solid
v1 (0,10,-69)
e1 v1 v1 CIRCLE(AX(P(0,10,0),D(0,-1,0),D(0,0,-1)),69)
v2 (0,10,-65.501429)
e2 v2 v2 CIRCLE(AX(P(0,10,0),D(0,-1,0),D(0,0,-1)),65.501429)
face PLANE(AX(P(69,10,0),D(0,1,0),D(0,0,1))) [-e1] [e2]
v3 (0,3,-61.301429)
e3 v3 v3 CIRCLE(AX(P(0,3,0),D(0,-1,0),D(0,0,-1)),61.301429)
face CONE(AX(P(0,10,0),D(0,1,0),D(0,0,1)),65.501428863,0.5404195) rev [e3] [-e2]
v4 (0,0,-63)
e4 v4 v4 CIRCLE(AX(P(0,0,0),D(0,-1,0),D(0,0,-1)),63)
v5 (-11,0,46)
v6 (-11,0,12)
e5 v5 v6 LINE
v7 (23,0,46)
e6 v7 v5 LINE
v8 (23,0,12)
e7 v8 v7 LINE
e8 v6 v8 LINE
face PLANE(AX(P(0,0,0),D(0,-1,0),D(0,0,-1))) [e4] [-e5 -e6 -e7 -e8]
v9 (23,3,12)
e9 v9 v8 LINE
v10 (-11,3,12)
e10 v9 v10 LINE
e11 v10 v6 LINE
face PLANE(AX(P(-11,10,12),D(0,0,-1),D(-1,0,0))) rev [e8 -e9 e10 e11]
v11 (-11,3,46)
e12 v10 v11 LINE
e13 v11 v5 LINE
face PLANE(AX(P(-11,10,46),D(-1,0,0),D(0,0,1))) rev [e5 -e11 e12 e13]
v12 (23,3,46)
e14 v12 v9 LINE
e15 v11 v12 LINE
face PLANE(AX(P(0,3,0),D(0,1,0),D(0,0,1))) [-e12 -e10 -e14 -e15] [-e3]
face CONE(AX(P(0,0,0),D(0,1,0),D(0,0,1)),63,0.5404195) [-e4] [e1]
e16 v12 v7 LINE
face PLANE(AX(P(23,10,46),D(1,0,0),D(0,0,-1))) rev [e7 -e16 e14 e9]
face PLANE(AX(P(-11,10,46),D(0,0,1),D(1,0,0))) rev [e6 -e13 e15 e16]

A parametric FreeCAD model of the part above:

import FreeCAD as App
import Part
import Sketcher
Q = App.Units.Quantity

doc = App.newDocument("Part")
body = doc.addObject("PartDesign::Body", "Body")

# Sketch on XY plane
sketch1 = doc.addObject("Sketcher::SketchObject", "Sketch")
body.addObject(sketch1)
sketch1.AttachmentSupport = (doc.XY_Plane, [""])
sketch1.MapMode = "FlatFace"
sketch1.addGeometry(Part.LineSegment(App.Vector(0, 0, 0), App.Vector(63, 0, 0)), False)
sketch1.addGeometry(Part.LineSegment(App.Vector(63, 0, 0), App.Vector(69, 10, 0)), False)
sketch1.addGeometry(Part.LineSegment(App.Vector(69, 10, 0), App.Vector(65.5, 10, 0)), False)
sketch1.addGeometry(Part.LineSegment(App.Vector(65.5, 10, 0), App.Vector(61.3, 3, 0)), False)
sketch1.addGeometry(Part.LineSegment(App.Vector(61.3, 3, 0), App.Vector(0, 3, 0)), False)
sketch1.addGeometry(Part.LineSegment(App.Vector(0, 3, 0), App.Vector(0, 0, 0)), False)
sketch1.addConstraint(Sketcher.Constraint("Coincident", 0, 2, 1, 1))
sketch1.addConstraint(Sketcher.Constraint("Coincident", 1, 2, 2, 1))
sketch1.addConstraint(Sketcher.Constraint("Coincident", 2, 2, 3, 1))
sketch1.addConstraint(Sketcher.Constraint("Coincident", 3, 2, 4, 1))
sketch1.addConstraint(Sketcher.Constraint("Coincident", 4, 2, 5, 1))
sketch1.addConstraint(Sketcher.Constraint("Coincident", 5, 2, 0, 1))
sketch1.addConstraint(Sketcher.Constraint("Horizontal", 0))
sketch1.addConstraint(Sketcher.Constraint("Horizontal", 2))
sketch1.addConstraint(Sketcher.Constraint("Horizontal", 4))
sketch1.addConstraint(Sketcher.Constraint("Vertical", 5))
sketch1.addConstraint(Sketcher.Constraint("Coincident", 5, 2, -1, 1))
sketch1.addConstraint(Sketcher.Constraint("Parallel", 1, 3))
sketch1.addConstraint(Sketcher.Constraint("DistanceX", 0, 1, 0, 2, Q("63 mm")))
sketch1.addConstraint(Sketcher.Constraint("DistanceY", 5, 2, 5, 1, Q("3 mm")))
sketch1.addConstraint(Sketcher.Constraint("DistanceX", -1, 1, 1, 2, Q("69 mm")))
sketch1.addConstraint(Sketcher.Constraint("DistanceY", -1, 1, 1, 2, Q("10 mm")))
sketch1.addConstraint(Sketcher.Constraint("DistanceX", 2, 2, 2, 1, Q("3.498571 mm")))
revolution = doc.addObject("PartDesign::Revolution", "Revolution")
body.addObject(revolution)
revolution.Profile = sketch1
revolution.ReferenceAxis = (sketch1, ["V_Axis"])
revolution.Angle = 360

# Sketch on XZ plane
sketch2 = doc.addObject("Sketcher::SketchObject", "Sketch001")
body.addObject(sketch2)
sketch2.AttachmentSupport = (doc.XZ_Plane, [""])
sketch2.MapMode = "FlatFace"
sketch2.addGeometry(Part.LineSegment(App.Vector(-11, 46, 0), App.Vector(-11, 12, 0)), False)
sketch2.addGeometry(Part.LineSegment(App.Vector(-11, 12, 0), App.Vector(23, 12, 0)), False)
sketch2.addGeometry(Part.LineSegment(App.Vector(23, 12, 0), App.Vector(23, 46, 0)), False)
sketch2.addGeometry(Part.LineSegment(App.Vector(23, 46, 0), App.Vector(-11, 46, 0)), False)
sketch2.addConstraint(Sketcher.Constraint("Coincident", 0, 2, 1, 1))
sketch2.addConstraint(Sketcher.Constraint("Coincident", 1, 2, 2, 1))
sketch2.addConstraint(Sketcher.Constraint("Coincident", 2, 2, 3, 1))
sketch2.addConstraint(Sketcher.Constraint("Coincident", 3, 2, 0, 1))
sketch2.addConstraint(Sketcher.Constraint("Vertical", 0))
sketch2.addConstraint(Sketcher.Constraint("Horizontal", 1))
sketch2.addConstraint(Sketcher.Constraint("Vertical", 2))
sketch2.addConstraint(Sketcher.Constraint("Horizontal", 3))
sketch2.addConstraint(Sketcher.Constraint("Equal", 3, 0))
sketch2.addConstraint(Sketcher.Constraint("DistanceX", 1, 1, 1, 2, Q("34 mm")))
sketch2.addConstraint(Sketcher.Constraint("DistanceX", 0, 2, -1, 1, Q("11 mm")))
sketch2.addConstraint(Sketcher.Constraint("DistanceY", -1, 1, 0, 2, Q("12 mm")))
pocket1 = doc.addObject("PartDesign::Pocket", "Pocket")
body.addObject(pocket1)
pocket1.Profile = sketch2
pocket1.Type = "ThroughAll"

doc.recompute()
